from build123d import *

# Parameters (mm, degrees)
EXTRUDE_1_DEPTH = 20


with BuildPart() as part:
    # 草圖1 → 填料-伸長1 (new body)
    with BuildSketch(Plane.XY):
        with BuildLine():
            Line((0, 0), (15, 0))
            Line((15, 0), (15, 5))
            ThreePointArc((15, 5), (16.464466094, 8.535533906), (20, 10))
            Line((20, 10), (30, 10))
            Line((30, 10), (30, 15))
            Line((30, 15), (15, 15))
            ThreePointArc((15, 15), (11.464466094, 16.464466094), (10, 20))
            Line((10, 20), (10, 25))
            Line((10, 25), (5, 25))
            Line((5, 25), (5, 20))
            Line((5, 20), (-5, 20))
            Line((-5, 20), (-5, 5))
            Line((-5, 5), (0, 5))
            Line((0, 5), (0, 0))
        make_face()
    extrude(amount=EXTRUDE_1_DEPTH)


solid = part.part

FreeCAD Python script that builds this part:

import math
import FreeCAD as App
import Part
import Sketcher
from FreeCAD import Vector
Q = App.Units.Quantity

doc = App.newDocument("Part")
body = doc.addObject("PartDesign::Body", "Body")

sketch1 = body.newObject("Sketcher::SketchObject", "Sketch")
sketch1.AttachmentSupport = (doc.getObject("XY_Plane"), [""])
sketch1.MapMode = "FlatFace"
sketch1.addGeometry(Part.LineSegment(Vector(0, 0, 0), Vector(15, 0, 0)), False)
sketch1.addGeometry(Part.LineSegment(Vector(15, 0, 0), Vector(15, 5, 0)), False)
sketch1.addGeometry(Part.ArcOfCircle(Part.Circle(Vector(20, 5, 0), Vector(0, 0, 1), 5), math.radians(90), math.radians(180)), False)
sketch1.addGeometry(Part.LineSegment(Vector(20, 10, 0), Vector(30, 10, 0)), False)
sketch1.addGeometry(Part.LineSegment(Vector(30, 10, 0), Vector(30, 15, 0)), False)
sketch1.addGeometry(Part.LineSegment(Vector(30, 15, 0), Vector(15, 15, 0)), False)
sketch1.addGeometry(Part.ArcOfCircle(Part.Circle(Vector(15, 20, 0), Vector(0, 0, 1), 5), math.radians(180), math.radians(270)), False)
sketch1.addGeometry(Part.LineSegment(Vector(10, 20, 0), Vector(10, 25, 0)), False)
sketch1.addGeometry(Part.LineSegment(Vector(10, 25, 0), Vector(5, 25, 0)), False)
sketch1.addGeometry(Part.LineSegment(Vector(5, 25, 0), Vector(5, 20, 0)), False)
sketch1.addGeometry(Part.LineSegment(Vector(5, 20, 0), Vector(-5, 20, 0)), False)
sketch1.addGeometry(Part.LineSegment(Vector(-5, 20, 0), Vector(-5, 5, 0)), False)
sketch1.addGeometry(Part.LineSegment(Vector(-5, 5, 0), Vector(0, 5, 0)), False)
sketch1.addGeometry(Part.LineSegment(Vector(0, 5, 0), Vector(0, 0, 0)), False)
sketch1.addConstraint(Sketcher.Constraint("Coincident", 0, 2, 1, 1))
sketch1.addConstraint(Sketcher.Constraint("Tangent", 1, 2, 2, 2))
sketch1.addConstraint(Sketcher.Constraint("Tangent", 2, 1, 3, 1))
sketch1.addConstraint(Sketcher.Constraint("Coincident", 3, 2, 4, 1))
sketch1.addConstraint(Sketcher.Constraint("Coincident", 4, 2, 5, 1))
sketch1.addConstraint(Sketcher.Constraint("Tangent", 5, 2, 6, 2))
sketch1.addConstraint(Sketcher.Constraint("Tangent", 6, 1, 7, 1))
sketch1.addConstraint(Sketcher.Constraint("Coincident", 7, 2, 8, 1))
sketch1.addConstraint(Sketcher.Constraint("Coincident", 8, 2, 9, 1))
sketch1.addConstraint(Sketcher.Constraint("Coincident", 9, 2, 10, 1))
sketch1.addConstraint(Sketcher.Constraint("Coincident", 10, 2, 11, 1))
sketch1.addConstraint(Sketcher.Constraint("Coincident", 11, 2, 12, 1))
sketch1.addConstraint(Sketcher.Constraint("Coincident", 12, 2, 13, 1))
sketch1.addConstraint(Sketcher.Constraint("Coincident", 13, 2, 0, 1))
sketch1.addConstraint(Sketcher.Constraint("Horizontal", 0))
sketch1.addConstraint(Sketcher.Constraint("Vertical", 1))
sketch1.addConstraint(Sketcher.Constraint("Horizontal", 3))
sketch1.addConstraint(Sketcher.Constraint("Vertical", 4))
sketch1.addConstraint(Sketcher.Constraint("Horizontal", 5))
sketch1.addConstraint(Sketcher.Constraint("Vertical", 7))
sketch1.addConstraint(Sketcher.Constraint("Horizontal", 8))
sketch1.addConstraint(Sketcher.Constraint("Vertical", 9))
sketch1.addConstraint(Sketcher.Constraint("Horizontal", 10))
sketch1.addConstraint(Sketcher.Constraint("Vertical", 11))
sketch1.addConstraint(Sketcher.Constraint("Horizontal", 12))
sketch1.addConstraint(Sketcher.Constraint("Vertical", 13))
sketch1.addConstraint(Sketcher.Constraint("Coincident", 13, 2, -1, 1))
sketch1.addConstraint(Sketcher.Constraint("Equal", 2, 6))
sketch1.addConstraint(Sketcher.Constraint("Horizontal", 6, 1, 9, 2))
sketch1.addConstraint(Sketcher.Constraint("Horizontal", 1, 2, 11, 2))
sketch1.addConstraint(Sketcher.Constraint("Vertical", 6, 3, 0, 2))
sketch1.addConstraint(Sketcher.Constraint("Equal", 0, 5))
sketch1.addConstraint(Sketcher.Constraint("Equal", 3, 10))
sketch1.addConstraint(Sketcher.Constraint("Equal", 12, 1))
sketch1.addConstraint(Sketcher.Constraint("Equal", 1, 4))
sketch1.addConstraint(Sketcher.Constraint("Equal", 4, 7))
sketch1.addConstraint(Sketcher.Constraint("Equal", 5, 11))
sketch1.addConstraint(Sketcher.Constraint("Radius", 2, Q("5 mm")))
sketch1.addConstraint(Sketcher.Constraint("DistanceX", 0, 1, 0, 2, Q("15 mm")))
pad1 = body.newObject("PartDesign::Pad", "Pad")
pad1.Profile = sketch1
pad1.Length = 20

doc.recompute()
